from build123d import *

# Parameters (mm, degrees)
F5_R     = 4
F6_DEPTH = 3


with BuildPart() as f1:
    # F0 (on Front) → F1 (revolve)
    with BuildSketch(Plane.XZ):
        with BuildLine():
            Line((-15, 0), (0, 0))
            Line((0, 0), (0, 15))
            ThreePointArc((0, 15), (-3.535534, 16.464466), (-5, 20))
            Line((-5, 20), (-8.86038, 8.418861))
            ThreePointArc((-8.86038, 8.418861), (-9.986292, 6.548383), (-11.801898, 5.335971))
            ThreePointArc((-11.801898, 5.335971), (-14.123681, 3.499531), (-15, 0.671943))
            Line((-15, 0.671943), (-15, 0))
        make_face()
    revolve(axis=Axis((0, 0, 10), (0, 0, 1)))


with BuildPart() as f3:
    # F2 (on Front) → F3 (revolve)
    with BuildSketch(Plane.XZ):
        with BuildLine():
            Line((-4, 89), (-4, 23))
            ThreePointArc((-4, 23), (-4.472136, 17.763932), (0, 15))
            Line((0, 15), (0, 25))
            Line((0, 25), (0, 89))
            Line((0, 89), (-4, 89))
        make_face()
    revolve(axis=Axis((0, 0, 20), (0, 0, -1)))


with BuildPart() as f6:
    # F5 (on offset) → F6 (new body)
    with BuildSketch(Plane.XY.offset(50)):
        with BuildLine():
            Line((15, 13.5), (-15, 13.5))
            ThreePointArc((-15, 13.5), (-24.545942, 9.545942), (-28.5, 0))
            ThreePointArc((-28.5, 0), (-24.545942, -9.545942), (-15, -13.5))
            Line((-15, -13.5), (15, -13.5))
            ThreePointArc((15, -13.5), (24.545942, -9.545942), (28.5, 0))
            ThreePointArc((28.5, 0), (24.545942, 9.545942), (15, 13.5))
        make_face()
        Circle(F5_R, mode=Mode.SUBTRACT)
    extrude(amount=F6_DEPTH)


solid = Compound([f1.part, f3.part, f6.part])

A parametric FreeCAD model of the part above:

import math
import FreeCAD as App
import Part
import Sketcher
Q = App.Units.Quantity

doc = App.newDocument("Part")
body = doc.addObject("PartDesign::Body", "Body")

sketch1 = body.newObject("Sketcher::SketchObject", "Sketch")
sketch1.AttachmentSupport = (doc.getObject("XZ_Plane"), [""])
sketch1.MapMode = "FlatFace"
sketch1.addGeometry([
    Part.LineSegment(App.Vector(-15, 0, 0), App.Vector(0, 0, 0)),
    Part.LineSegment(App.Vector(0, 0, 0), App.Vector(0, 15, 0)),
    Part.ArcOfCircle(Part.Circle(App.Vector(0, 20, 0), App.Vector(0, 0, 1), 5), math.radians(180), math.radians(270)),
    Part.LineSegment(App.Vector(-5, 20, 0), App.Vector(-8.9, 8.4, 0)),
    Part.ArcOfCircle(Part.Circle(App.Vector(-13.6, 10, 0), App.Vector(0, 0, 1), 5), math.radians(-69), math.radians(-18)),
    Part.ArcOfCircle(Part.Circle(App.Vector(-10, 0.7, 0), App.Vector(0, 0, 1), 5), math.radians(111), math.radians(180)),
    Part.LineSegment(App.Vector(-15, 0.7, 0), App.Vector(-15, 0, 0)),
], False)
sketch1.addConstraint([
    Sketcher.Constraint("Coincident", 0, 2, 1, 1),
    Sketcher.Constraint("Coincident", 1, 2, 2, 2),
    Sketcher.Constraint("Coincident", 2, 1, 3, 1),
    Sketcher.Constraint("Tangent", 3, 2, 4, 2),
    Sketcher.Constraint("Tangent", 4, 1, 5, 1),
    Sketcher.Constraint("Tangent", 5, 2, 6, 1),
    Sketcher.Constraint("Coincident", 6, 2, 0, 1),
    Sketcher.Constraint("Horizontal", 0),
    Sketcher.Constraint("Vertical", 1),
    Sketcher.Constraint("Vertical", 6),
    Sketcher.Constraint("Coincident", 0, 2, -1, 1),
    Sketcher.Constraint("Equal", 2, 5),
    Sketcher.Constraint("PointOnObject", 2, 3, -2),
    Sketcher.Constraint("Equal", 0, 1),
    Sketcher.Constraint("Radius", 2, Q("5 mm")),
    Sketcher.Constraint("DistanceX", 0, 1, 0, 2, Q("15 mm")),
    Sketcher.Constraint("DistanceY", -1, 1, 2, 1, Q("20 mm")),
    Sketcher.Constraint("Radius", 4, Q("5.000004 mm")),
    Sketcher.Constraint("DistanceX", 4, 3, -1, 1, Q("13.6038 mm")),
    Sketcher.Constraint("DistanceY", 6, 2, 6, 1, Q("0.671943 mm")),
])
revolution = body.newObject("PartDesign::Revolution", "Revolution")
revolution.Profile = sketch1
revolution.ReferenceAxis = (sketch1, ["V_Axis"])
revolution.Angle = 360
body2 = doc.addObject("PartDesign::Body", "Body001")

sketch2 = body2.newObject("Sketcher::SketchObject", "Sketch001")
sketch2.AttachmentSupport = (doc.getObject("XZ_Plane001"), [""])
sketch2.MapMode = "FlatFace"
sketch2.addGeometry([
    Part.LineSegment(App.Vector(-4, 89, 0), App.Vector(-4, 23, 0)),
    Part.ArcOfCircle(Part.Circle(App.Vector(0, 20, 0), App.Vector(0, 0, 1), 5), math.radians(143), math.radians(270)),
    Part.LineSegment(App.Vector(0, 15, 0), App.Vector(0, 89, 0)),
    Part.LineSegment(App.Vector(0, 89, 0), App.Vector(-4, 89, 0)),
], False)
sketch2.addConstraint([
    Sketcher.Constraint("Coincident", 0, 2, 1, 1),
    Sketcher.Constraint("Coincident", 1, 2, 2, 1),
    Sketcher.Constraint("Coincident", 2, 2, 3, 1),
    Sketcher.Constraint("Coincident", 3, 2, 0, 1),
    Sketcher.Constraint("Vertical", 0),
    Sketcher.Constraint("Vertical", 2),
    Sketcher.Constraint("Horizontal", 3),
    Sketcher.Constraint("PointOnObject", 1, 3, -2),
    Sketcher.Constraint("PointOnObject", 1, 2, -2),
    Sketcher.Constraint("Radius", 1, Q("5 mm")),
    Sketcher.Constraint("DistanceX", 3, 2, 3, 1, Q("4 mm")),
    Sketcher.Constraint("DistanceY", 0, 2, 0, 1, Q("66 mm")),
    Sketcher.Constraint("DistanceY", -1, 1, 1, 3, Q("20 mm")),
])
revolution2 = body2.newObject("PartDesign::Revolution", "Revolution001")
revolution2.Profile = sketch2
revolution2.ReferenceAxis = (sketch2, ["V_Axis"])
revolution2.Angle = 360
body3 = doc.addObject("PartDesign::Body", "Body002")

sketch3 = body3.newObject("Sketcher::SketchObject", "Sketch002")
sketch3.AttachmentSupport = (doc.getObject("XY_Plane002"), [""])
sketch3.MapMode = "FlatFace"
sketch3.AttachmentOffset = App.Placement(App.Vector(0, 0, 50), App.Rotation())
sketch3.addGeometry([
    Part.LineSegment(App.Vector(15, 13.5, 0), App.Vector(-15, 13.5, 0)),
    Part.ArcOfCircle(Part.Circle(App.Vector(-15, 0, 0), App.Vector(0, 0, 1), 13.5), math.radians(90), math.radians(180)),
    Part.ArcOfCircle(Part.Circle(App.Vector(-15, 0, 0), App.Vector(0, 0, 1), 13.5), math.radians(180), math.radians(270)),
    Part.LineSegment(App.Vector(-15, -13.5, 0), App.Vector(15, -13.5, 0)),
    Part.ArcOfCircle(Part.Circle(App.Vector(15, 0, 0), App.Vector(0, 0, 1), 13.5), math.radians(-90), math.radians(0)),
    Part.ArcOfCircle(Part.Circle(App.Vector(15, 0, 0), App.Vector(0, 0, 1), 13.5), math.radians(0), math.radians(90)),
    Part.Circle(App.Vector(0, 0, 0), App.Vector(0, 0, 1), 4),
], False)
sketch3.addConstraint([
    Sketcher.Constraint("Tangent", 0, 2, 1, 1),
    Sketcher.Constraint("Tangent", 1, 2, 2, 1),
    Sketcher.Constraint("Tangent", 2, 2, 3, 1),
    Sketcher.Constraint("Tangent", 3, 2, 4, 1),
    Sketcher.Constraint("Tangent", 4, 2, 5, 1),
    Sketcher.Constraint("Tangent", 5, 2, 0, 1),
    Sketcher.Constraint("Horizontal", 0),
    Sketcher.Constraint("Horizontal", 3),
    Sketcher.Constraint("Coincident", 6, 3, -1, 1),
    Sketcher.Constraint("Equal", 1, 2),
    Sketcher.Constraint("Equal", 2, 4),
    Sketcher.Constraint("Symmetric", 1, 3, 4, 3, -1, 1),
    Sketcher.Constraint("PointOnObject", 1, 2, -1),
    Sketcher.Constraint("PointOnObject", 4, 2, -1),
    Sketcher.Constraint("Diameter", 6, Q("8 mm")),
    Sketcher.Constraint("Radius", 1, Q("13.499998 mm")),
    Sketcher.Constraint("DistanceX", 0, 2, 0, 1, Q("30 mm")),
])
pad1 = body3.newObject("PartDesign::Pad", "Pad")
pad1.Profile = sketch3
pad1.Length = 3

doc.recompute()
